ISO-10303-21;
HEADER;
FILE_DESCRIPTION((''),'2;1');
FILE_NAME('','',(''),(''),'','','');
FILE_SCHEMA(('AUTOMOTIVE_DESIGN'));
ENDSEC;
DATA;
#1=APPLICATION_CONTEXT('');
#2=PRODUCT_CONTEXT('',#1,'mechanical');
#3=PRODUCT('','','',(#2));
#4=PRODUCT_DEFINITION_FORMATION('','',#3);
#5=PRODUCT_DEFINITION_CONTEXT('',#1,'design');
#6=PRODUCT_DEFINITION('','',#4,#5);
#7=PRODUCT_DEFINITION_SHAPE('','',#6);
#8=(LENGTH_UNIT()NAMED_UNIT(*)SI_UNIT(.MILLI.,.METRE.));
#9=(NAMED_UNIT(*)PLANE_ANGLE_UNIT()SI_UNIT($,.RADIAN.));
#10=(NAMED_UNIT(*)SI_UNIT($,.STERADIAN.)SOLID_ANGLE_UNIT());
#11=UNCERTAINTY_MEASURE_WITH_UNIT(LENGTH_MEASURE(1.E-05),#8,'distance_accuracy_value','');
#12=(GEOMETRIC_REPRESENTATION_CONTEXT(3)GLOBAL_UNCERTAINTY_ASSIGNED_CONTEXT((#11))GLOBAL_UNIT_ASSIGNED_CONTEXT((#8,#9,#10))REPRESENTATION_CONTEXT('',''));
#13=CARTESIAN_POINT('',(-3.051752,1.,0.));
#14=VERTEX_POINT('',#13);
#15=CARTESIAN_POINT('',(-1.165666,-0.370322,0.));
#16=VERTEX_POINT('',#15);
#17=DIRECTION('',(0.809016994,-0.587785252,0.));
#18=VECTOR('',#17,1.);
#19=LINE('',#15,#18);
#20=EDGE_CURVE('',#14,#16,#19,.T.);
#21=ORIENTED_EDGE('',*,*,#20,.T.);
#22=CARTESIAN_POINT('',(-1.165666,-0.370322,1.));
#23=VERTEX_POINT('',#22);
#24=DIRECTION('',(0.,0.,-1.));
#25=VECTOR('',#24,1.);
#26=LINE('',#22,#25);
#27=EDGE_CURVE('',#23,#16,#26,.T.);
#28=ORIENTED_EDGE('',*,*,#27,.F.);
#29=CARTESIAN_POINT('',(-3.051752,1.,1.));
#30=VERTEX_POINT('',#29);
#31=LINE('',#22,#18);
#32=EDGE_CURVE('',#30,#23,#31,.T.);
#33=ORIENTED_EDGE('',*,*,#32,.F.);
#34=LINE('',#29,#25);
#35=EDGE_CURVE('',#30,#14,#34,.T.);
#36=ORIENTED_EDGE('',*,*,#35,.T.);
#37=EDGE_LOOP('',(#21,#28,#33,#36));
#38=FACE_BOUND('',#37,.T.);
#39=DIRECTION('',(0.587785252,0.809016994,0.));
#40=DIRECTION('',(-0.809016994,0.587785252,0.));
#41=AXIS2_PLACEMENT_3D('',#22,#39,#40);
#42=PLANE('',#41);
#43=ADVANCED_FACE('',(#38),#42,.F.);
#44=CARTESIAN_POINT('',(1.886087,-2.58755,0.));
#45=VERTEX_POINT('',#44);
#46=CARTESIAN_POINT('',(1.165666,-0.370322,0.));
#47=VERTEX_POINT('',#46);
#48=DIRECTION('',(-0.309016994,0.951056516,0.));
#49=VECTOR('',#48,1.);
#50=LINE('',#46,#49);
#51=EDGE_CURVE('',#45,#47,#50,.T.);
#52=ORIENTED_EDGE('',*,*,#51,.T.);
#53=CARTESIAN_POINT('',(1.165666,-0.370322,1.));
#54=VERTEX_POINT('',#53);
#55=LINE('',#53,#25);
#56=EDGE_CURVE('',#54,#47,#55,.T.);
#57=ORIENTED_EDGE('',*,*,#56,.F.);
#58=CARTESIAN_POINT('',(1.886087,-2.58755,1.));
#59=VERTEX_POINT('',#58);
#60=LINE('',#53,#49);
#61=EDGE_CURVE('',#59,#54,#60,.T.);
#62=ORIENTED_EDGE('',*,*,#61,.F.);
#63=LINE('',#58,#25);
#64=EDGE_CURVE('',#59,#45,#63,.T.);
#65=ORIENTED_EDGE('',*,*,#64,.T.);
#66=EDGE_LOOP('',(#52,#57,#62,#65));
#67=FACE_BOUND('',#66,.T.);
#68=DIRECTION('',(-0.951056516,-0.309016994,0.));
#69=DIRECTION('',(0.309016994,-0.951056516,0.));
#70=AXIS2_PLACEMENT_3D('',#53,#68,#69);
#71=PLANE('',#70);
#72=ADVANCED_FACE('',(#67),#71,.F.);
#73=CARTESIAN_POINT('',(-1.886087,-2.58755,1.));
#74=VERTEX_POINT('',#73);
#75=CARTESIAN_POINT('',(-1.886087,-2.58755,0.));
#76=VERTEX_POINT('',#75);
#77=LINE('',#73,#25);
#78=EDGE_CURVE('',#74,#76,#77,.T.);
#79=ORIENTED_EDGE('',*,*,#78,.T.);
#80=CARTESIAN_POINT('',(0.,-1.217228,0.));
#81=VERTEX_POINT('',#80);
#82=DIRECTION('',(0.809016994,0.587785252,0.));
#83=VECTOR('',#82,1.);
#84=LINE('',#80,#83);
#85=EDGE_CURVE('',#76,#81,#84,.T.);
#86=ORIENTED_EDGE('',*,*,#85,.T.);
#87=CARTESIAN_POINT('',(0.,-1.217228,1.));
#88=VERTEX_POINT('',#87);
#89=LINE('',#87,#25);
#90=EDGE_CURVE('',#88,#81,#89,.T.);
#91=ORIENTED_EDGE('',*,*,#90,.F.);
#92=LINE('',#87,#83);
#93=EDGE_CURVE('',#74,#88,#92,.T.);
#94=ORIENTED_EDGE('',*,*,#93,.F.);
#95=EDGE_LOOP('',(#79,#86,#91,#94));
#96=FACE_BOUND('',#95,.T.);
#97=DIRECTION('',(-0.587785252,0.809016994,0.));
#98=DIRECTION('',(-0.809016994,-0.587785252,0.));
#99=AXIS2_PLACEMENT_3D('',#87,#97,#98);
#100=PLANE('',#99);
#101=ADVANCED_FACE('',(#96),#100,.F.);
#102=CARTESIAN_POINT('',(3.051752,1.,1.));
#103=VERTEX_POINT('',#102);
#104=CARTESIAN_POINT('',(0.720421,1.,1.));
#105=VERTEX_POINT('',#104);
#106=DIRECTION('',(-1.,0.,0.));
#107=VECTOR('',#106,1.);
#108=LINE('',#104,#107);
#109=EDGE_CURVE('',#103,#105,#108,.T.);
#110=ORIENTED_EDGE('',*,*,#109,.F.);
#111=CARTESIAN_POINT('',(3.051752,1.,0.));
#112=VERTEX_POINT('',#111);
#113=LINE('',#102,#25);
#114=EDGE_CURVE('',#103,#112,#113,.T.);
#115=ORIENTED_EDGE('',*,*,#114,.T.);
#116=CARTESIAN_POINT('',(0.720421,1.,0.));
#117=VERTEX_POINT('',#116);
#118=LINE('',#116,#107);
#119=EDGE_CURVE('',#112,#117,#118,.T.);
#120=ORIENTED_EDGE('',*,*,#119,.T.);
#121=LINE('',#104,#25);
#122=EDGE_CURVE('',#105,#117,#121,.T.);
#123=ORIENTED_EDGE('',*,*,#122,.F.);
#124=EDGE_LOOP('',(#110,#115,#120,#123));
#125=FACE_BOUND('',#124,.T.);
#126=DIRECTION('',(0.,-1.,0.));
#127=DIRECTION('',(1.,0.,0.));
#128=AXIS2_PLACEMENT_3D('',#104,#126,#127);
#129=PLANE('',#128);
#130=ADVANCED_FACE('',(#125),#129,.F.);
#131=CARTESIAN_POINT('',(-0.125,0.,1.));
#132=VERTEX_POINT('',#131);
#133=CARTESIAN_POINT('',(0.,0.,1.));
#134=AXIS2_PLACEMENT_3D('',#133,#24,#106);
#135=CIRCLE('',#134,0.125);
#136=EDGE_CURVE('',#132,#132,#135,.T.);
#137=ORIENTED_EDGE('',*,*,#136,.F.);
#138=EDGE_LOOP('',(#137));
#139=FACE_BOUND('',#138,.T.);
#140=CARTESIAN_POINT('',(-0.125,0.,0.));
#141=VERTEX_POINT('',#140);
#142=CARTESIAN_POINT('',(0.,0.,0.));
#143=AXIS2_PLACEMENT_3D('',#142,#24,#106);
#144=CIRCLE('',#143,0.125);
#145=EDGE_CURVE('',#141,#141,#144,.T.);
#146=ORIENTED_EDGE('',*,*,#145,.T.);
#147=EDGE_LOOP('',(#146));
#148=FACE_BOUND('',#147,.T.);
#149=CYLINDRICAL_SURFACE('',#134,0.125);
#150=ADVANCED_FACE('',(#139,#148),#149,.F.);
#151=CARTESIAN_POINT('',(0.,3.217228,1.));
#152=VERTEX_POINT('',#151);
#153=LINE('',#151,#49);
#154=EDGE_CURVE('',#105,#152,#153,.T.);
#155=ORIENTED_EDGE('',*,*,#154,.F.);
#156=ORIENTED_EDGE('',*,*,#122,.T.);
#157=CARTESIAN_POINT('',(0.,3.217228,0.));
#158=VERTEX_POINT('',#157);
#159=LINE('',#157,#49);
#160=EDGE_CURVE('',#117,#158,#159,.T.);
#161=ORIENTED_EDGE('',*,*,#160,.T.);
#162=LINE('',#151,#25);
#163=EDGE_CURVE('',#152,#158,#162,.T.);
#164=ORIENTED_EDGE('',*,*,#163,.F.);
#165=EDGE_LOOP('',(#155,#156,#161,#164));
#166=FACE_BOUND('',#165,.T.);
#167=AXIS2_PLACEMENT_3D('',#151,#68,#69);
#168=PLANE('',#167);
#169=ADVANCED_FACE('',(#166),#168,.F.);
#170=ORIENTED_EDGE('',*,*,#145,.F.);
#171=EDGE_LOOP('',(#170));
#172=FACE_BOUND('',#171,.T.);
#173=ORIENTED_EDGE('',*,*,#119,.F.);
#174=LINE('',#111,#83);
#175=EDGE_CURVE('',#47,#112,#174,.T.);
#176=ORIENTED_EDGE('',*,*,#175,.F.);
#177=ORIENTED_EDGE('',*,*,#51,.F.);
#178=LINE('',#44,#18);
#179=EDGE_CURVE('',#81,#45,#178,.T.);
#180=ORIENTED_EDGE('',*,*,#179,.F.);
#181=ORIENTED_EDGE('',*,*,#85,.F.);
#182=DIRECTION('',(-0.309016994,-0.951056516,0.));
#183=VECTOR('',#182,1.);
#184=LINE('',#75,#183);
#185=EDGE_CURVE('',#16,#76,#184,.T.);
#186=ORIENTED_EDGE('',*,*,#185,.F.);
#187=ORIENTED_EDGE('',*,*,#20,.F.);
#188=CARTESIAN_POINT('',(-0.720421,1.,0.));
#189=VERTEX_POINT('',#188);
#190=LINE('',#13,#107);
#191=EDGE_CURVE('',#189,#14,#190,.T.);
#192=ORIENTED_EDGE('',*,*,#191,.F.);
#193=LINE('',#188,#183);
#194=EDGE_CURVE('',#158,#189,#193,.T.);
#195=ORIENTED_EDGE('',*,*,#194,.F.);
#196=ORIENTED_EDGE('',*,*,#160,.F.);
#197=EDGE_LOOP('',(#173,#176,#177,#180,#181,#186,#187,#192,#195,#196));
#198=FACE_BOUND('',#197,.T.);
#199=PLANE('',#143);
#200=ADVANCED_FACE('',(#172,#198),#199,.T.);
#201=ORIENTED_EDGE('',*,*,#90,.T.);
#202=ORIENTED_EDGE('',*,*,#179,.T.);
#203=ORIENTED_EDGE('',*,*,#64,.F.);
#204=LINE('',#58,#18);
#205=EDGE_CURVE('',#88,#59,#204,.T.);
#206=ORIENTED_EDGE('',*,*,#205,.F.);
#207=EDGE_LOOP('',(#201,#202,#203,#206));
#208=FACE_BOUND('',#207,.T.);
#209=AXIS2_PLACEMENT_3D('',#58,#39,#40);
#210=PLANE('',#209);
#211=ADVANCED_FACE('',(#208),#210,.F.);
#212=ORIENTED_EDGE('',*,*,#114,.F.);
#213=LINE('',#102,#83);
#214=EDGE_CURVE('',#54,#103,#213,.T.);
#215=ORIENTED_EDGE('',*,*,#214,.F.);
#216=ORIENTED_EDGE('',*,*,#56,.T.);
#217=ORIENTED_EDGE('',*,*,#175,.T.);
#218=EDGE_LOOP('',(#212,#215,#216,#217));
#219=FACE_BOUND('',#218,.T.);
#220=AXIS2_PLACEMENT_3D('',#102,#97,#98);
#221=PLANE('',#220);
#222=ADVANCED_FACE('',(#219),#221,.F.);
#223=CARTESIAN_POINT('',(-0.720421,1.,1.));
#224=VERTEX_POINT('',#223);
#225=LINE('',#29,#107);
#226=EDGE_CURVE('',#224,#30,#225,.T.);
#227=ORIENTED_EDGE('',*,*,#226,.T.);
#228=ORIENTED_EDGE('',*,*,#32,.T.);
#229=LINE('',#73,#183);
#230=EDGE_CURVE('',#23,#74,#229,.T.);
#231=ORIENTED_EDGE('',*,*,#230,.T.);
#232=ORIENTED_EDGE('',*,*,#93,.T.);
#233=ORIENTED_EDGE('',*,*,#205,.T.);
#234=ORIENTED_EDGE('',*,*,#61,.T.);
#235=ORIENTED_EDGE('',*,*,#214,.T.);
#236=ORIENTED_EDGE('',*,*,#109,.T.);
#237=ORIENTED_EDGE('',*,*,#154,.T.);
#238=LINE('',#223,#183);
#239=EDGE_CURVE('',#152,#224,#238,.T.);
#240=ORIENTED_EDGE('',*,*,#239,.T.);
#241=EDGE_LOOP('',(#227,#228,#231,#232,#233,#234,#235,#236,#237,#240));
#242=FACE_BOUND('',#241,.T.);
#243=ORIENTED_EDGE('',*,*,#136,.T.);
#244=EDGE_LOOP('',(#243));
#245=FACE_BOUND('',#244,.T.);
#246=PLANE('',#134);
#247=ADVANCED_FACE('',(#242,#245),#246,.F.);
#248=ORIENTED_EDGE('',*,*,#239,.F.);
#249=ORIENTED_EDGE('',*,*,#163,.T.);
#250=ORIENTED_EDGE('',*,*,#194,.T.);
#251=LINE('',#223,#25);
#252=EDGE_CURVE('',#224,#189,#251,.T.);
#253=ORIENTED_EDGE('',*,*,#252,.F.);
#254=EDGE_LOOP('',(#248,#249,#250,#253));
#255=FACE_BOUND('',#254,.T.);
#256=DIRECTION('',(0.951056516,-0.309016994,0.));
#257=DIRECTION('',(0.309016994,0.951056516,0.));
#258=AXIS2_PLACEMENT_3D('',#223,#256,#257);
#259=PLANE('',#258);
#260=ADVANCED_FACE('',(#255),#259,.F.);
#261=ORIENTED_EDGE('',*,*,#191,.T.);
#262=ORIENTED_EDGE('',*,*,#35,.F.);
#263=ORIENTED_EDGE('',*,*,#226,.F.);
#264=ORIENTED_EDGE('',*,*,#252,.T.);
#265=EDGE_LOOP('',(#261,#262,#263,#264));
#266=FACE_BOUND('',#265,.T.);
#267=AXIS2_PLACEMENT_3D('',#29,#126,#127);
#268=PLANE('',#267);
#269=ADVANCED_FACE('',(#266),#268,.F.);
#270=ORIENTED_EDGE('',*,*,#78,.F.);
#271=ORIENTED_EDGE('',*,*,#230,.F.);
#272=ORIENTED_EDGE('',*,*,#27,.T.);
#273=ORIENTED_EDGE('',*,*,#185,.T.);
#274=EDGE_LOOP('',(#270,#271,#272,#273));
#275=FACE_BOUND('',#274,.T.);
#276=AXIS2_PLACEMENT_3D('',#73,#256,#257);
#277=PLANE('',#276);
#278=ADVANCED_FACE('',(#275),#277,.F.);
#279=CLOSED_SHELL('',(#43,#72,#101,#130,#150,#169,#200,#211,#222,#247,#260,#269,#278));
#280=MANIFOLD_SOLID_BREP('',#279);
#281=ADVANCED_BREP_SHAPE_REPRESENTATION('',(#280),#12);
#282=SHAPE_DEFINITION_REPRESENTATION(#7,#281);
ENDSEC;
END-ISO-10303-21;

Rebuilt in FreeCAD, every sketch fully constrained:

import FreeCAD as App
import Part
import Sketcher
Q = App.Units.Quantity


def add_polygon(sketch, points):
    """Adds a closed chain of lines whose ends are joined by coincident constraints."""
    first, n = sketch.GeometryCount, len(points)
    for a, b in zip(points, points[1:] + points[:1]):
        sketch.addGeometry(Part.LineSegment(App.Vector(*a, 0), App.Vector(*b, 0)), False)
    for i in range(n):
        sketch.addConstraint(Sketcher.Constraint("Coincident", first + i, 2, first + (i + 1) % n, 1))

doc = App.newDocument("Part")
body = doc.addObject("PartDesign::Body", "Body")

# Sketch on XY plane
sketch1 = body.newObject("Sketcher::SketchObject", "Sketch")
sketch1.AttachmentSupport = (doc.getObject("XY_Plane"), [""])
sketch1.MapMode = "FlatFace"
add_polygon(sketch1, [(0.7, 1), (0, 3.2), (-0.7, 1), (-3.1, 1), (-1.2, -0.4), (-1.9, -2.6), (0, -1.2), (1.9, -2.6), (1.2, -0.4), (3.1, 1)])  # lines 0-9
sketch1.addConstraint(Sketcher.Constraint("Horizontal", 2))
sketch1.addConstraint(Sketcher.Constraint("Horizontal", 9))
sketch1.addConstraint(Sketcher.Constraint("Symmetric", 4, 2, 6, 2, -2))
sketch1.addConstraint(Sketcher.Constraint("Symmetric", 3, 2, 7, 2, -2))
sketch1.addConstraint(Sketcher.Constraint("Symmetric", 2, 2, 8, 2, -2))
sketch1.addConstraint(Sketcher.Constraint("PointOnObject", 0, 2, -2))
sketch1.addConstraint(Sketcher.Constraint("PointOnObject", 5, 2, -2))
sketch1.addConstraint(Sketcher.Constraint("Parallel", 1, 4))
sketch1.addConstraint(Sketcher.Constraint("Parallel", 3, 6))
sketch1.addConstraint(Sketcher.Constraint("Parallel", 0, 7))
sketch1.addConstraint(Sketcher.Constraint("Equal", 1, 3))
sketch1.addConstraint(Sketcher.Constraint("Equal", 3, 4))
sketch1.addConstraint(Sketcher.Constraint("Equal", 4, 5))
sketch1.addConstraint(Sketcher.Constraint("Angle", 0, Q("108 deg")))
sketch1.addConstraint(Sketcher.Constraint("Angle", 3, Q("-36 deg")))
sketch1.addConstraint(Sketcher.Constraint("DistanceY", -1, 1, 1, 2, 1.0))
sketch1.addConstraint(Sketcher.Constraint("DistanceX", 2, 2, 2, 1, 2.331331))
pad1 = body.newObject("PartDesign::Pad", "Pad")
pad1.Profile = sketch1
pad1.Length = 1

# Sketch on XY plane
sketch2 = body.newObject("Sketcher::SketchObject", "Sketch001")
sketch2.AttachmentSupport = (doc.getObject("XY_Plane"), [""])
sketch2.MapMode = "FlatFace"
sketch2.addGeometry(Part.Circle(App.Vector(0, 0, 0), App.Vector(0, 0, 1), 0.12), False)
sketch2.addConstraint(Sketcher.Constraint("Coincident", 0, 3, -1, 1))
sketch2.addConstraint(Sketcher.Constraint("Diameter", 0, 0.25))
pocket1 = body.newObject("PartDesign::Pocket", "Pocket")
pocket1.Profile = sketch2
pocket1.Type = "ThroughAll"
pocket1.Reversed = True

doc.recompute()
